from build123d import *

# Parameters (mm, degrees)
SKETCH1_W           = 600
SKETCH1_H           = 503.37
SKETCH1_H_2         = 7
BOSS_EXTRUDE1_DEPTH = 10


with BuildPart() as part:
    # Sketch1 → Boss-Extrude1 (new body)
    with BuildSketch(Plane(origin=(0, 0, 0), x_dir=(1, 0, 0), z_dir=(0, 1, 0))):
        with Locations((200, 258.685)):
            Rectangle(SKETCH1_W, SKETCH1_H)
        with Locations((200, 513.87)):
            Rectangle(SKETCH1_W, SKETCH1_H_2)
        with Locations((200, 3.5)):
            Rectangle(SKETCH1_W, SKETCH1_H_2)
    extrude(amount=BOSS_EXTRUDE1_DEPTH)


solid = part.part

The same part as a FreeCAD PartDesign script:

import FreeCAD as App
import Part
import Sketcher
Q = App.Units.Quantity


def add_polygon(sketch, points):
    """Adds a closed chain of lines whose ends are joined by coincident constraints."""
    first, n = sketch.GeometryCount, len(points)
    for a, b in zip(points, points[1:] + points[:1]):
        sketch.addGeometry(Part.LineSegment(App.Vector(*a, 0), App.Vector(*b, 0)), False)
    for i in range(n):
        sketch.addConstraint(Sketcher.Constraint("Coincident", first + i, 2, first + (i + 1) % n, 1))

doc = App.newDocument("Part")
params = doc.addObject("Spreadsheet::Sheet", "Params")
for row, (alias, value) in enumerate([
    ("sketch1_width", "600 mm"),
    ("sketch1_height", "517.37 mm"),
    ("pad1_length", "10 mm"),
], start=1):
    params.set(f"A{row}", alias)
    params.set(f"B{row}", "=" + value)
    params.setAlias(f"B{row}", alias)

body = doc.addObject("PartDesign::Body", "Body")

# Sketch on XZ plane
sketch1 = doc.addObject("Sketcher::SketchObject", "Sketch")
body.addObject(sketch1)
sketch1.AttachmentSupport = (doc.XZ_Plane, [""])
sketch1.MapMode = "FlatFace"
add_polygon(sketch1, [(500, -517.37), (-100, -517.37), (-100, 0), (500, 0)])  # lines 0-3
sketch1.addConstraint([
    Sketcher.Constraint("Horizontal", 0),
    Sketcher.Constraint("Vertical", 1),
    Sketcher.Constraint("Horizontal", 2),
    Sketcher.Constraint("Vertical", 3),
    Sketcher.Constraint("PointOnObject", 1, 2, -1),
    Sketcher.Constraint("DistanceX", 0, 2, 0, 1, Q("600 mm")),
    Sketcher.Constraint("DistanceX", 0, 2, -1, 1, Q("100 mm")),
    Sketcher.Constraint("DistanceY", 1, 1, 1, 2, Q("517.37 mm")),
])
sketch1.setExpression("Constraints[9]", "Params.sketch1_width")
sketch1.setExpression("Constraints[11]", "Params.sketch1_height")
pad1 = doc.addObject("PartDesign::Pad", "Pad")
body.addObject(pad1)
pad1.Profile = sketch1
pad1.setExpression("Length", "Params.pad1_length")
pad1.Reversed = True

doc.recompute()
